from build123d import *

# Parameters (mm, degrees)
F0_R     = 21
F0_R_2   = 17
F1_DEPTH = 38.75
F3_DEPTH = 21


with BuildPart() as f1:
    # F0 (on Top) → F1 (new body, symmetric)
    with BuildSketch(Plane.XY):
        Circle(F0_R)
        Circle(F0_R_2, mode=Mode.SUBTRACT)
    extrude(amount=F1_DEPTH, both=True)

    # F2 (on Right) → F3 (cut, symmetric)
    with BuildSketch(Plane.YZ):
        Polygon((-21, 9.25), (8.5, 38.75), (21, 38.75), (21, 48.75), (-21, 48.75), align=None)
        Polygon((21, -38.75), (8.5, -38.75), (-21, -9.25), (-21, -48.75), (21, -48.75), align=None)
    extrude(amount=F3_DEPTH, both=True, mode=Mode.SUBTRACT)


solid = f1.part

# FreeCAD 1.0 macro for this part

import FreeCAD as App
import Part
import Sketcher

V = App.Vector


def add_polygon(sketch, points):
    """Adds a closed chain of lines whose ends are joined by coincident constraints."""
    first, n = sketch.GeometryCount, len(points)
    for a, b in zip(points, points[1:] + points[:1]):
        sketch.addGeometry(Part.LineSegment(App.Vector(*a, 0), App.Vector(*b, 0)), False)
    for i in range(n):
        sketch.addConstraint(Sketcher.Constraint("Coincident", first + i, 2, first + (i + 1) % n, 1))

doc = App.newDocument("Part")
body = doc.addObject("PartDesign::Body", "Body")

# Sketch on XY plane
sketch1 = body.newObject("Sketcher::SketchObject", "Sketch")
sketch1.AttachmentSupport = (doc.getObject("XY_Plane"), [""])
sketch1.MapMode = "FlatFace"
sketch1.addGeometry([
    Part.Circle(V(0, 0, 0), V(0, 0, 1), 21),
    Part.Circle(V(0, 0, 0), V(0, 0, 1), 17),
], False)
sketch1.addConstraint([
    Sketcher.Constraint("Coincident", 0, 3, -1, 1),
    Sketcher.Constraint("Coincident", 1, 3, -1, 1),
    Sketcher.Constraint("Diameter", 0, 42.0),
    Sketcher.Constraint("Diameter", 1, 34.0),
])
pad1 = body.newObject("PartDesign::Pad", "Pad")
pad1.Profile = sketch1
pad1.Length = 77.5
pad1.Midplane = True

# Sketch on YZ plane
sketch2 = body.newObject("Sketcher::SketchObject", "Sketch001")
sketch2.AttachmentSupport = (doc.getObject("YZ_Plane"), [""])
sketch2.MapMode = "FlatFace"
add_polygon(sketch2, [(-21, 9.25), (8.5, 38.75), (21, 38.75), (21, 48.75), (-21, 48.75)])  # lines 0-4
add_polygon(sketch2, [(21, -38.75), (8.5, -38.75), (-21, -9.25), (-21, -48.75), (21, -48.75)])  # lines 5-9
sketch2.addConstraint([
    Sketcher.Constraint("Horizontal", 1),
    Sketcher.Constraint("Vertical", 2),
    Sketcher.Constraint("Horizontal", 3),
    Sketcher.Constraint("Vertical", 4),
    Sketcher.Constraint("Horizontal", 5),
    Sketcher.Constraint("Vertical", 7),
    Sketcher.Constraint("Horizontal", 8),
    Sketcher.Constraint("Vertical", 9),
    Sketcher.Constraint("Symmetric", 2, 2, 7, 2, -1, 1),
    Sketcher.Constraint("Symmetric", 0, 2, 5, 2, -1),
    Sketcher.Constraint("Symmetric", 4, 2, 6, 2, -1),
    Sketcher.Constraint("Perpendicular", 0, 6),
    Sketcher.Constraint("Vertical", 2, 2, 8, 2),
    Sketcher.Constraint("DistanceX", 3, 2, 3, 1, 42.0),
    Sketcher.Constraint("DistanceY", 2, 1, 2, 2, 10.0),
    Sketcher.Constraint("DistanceX", 1, 1, 1, 2, 12.5),
    Sketcher.Constraint("DistanceY", 5, 2, 4, 2, 48.0),
])
pocket1 = body.newObject("PartDesign::Pocket", "Pocket")
pocket1.Profile = sketch2
pocket1.Length = 42
pocket1.Midplane = True

doc.recompute()
